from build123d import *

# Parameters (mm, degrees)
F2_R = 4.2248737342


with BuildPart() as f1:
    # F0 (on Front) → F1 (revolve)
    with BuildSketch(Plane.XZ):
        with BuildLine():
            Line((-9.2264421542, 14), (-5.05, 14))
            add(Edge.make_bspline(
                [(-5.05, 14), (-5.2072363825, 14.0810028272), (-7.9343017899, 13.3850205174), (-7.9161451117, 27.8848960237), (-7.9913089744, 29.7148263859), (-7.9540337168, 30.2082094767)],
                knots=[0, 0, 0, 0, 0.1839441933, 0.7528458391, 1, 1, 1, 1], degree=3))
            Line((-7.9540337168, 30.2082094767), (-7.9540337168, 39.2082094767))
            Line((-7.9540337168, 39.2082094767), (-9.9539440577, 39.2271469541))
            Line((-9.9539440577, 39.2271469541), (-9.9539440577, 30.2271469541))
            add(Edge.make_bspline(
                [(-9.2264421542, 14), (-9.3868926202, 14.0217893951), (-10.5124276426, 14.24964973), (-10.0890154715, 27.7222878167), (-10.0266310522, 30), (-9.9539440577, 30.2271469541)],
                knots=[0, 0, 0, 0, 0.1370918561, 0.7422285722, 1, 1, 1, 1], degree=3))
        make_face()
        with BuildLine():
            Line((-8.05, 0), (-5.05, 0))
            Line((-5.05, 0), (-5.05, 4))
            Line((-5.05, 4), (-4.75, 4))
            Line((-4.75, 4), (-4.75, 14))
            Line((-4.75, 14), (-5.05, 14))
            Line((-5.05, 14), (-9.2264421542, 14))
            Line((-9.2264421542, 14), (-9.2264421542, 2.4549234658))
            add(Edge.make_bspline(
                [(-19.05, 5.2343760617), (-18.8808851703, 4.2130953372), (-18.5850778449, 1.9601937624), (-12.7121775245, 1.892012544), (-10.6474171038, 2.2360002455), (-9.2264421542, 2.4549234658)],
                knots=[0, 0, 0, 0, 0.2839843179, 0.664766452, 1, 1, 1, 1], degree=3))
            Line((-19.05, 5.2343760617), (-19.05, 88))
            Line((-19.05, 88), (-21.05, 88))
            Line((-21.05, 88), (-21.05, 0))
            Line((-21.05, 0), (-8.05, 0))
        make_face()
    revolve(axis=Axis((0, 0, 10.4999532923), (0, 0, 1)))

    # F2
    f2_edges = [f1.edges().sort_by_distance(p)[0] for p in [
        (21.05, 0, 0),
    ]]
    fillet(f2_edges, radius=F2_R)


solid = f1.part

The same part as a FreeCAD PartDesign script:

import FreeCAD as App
import Part
import Sketcher
from FreeCAD import Vector
Q = App.Units.Quantity


def edges_at(feature, points):
    """Names of the edges that pass closest to the given points."""
    edges = feature.Shape.Edges
    near = lambda p: min(range(len(edges)), key=lambda i: edges[i].distToShape(Part.Vertex(*p))[0])
    return sorted({f"Edge{near(p) + 1}" for p in points})

doc = App.newDocument("Part")
body = doc.addObject("PartDesign::Body", "Body")

# Sketch on XZ plane
sketch1 = doc.addObject("Sketcher::SketchObject", "Sketch")
body.addObject(sketch1)
sketch1.AttachmentSupport = (doc.XZ_Plane, [""])
sketch1.MapMode = "FlatFace"
sketch1.addGeometry(Part.BSplineCurve([Vector(-5.05, 14, 0), Vector(-5.207236, 14.081003, 0), Vector(-7.934302, 13.385021, 0), Vector(-7.916145, 27.884896, 0), Vector(-7.991309, 29.714826, 0), Vector(-7.954034, 30.208209, 0)], [4, 1, 1, 4], [0, 0.183944193, 0.752845839, 1], False, 3, [1, 1, 1, 1, 1, 1], False), False)
sketch1.addGeometry(Part.LineSegment(Vector(-7.954034, 30.208209, 0), Vector(-7.954034, 39.208209, 0)), False)
sketch1.addGeometry(Part.LineSegment(Vector(-7.954034, 39.208209, 0), Vector(-9.953944, 39.227147, 0)), False)
sketch1.addGeometry(Part.LineSegment(Vector(-9.953944, 39.227147, 0), Vector(-9.953944, 30.227147, 0)), False)
sketch1.addGeometry(Part.BSplineCurve([Vector(-9.226442, 14, 0), Vector(-9.386893, 14.021789, 0), Vector(-10.512428, 14.24965, 0), Vector(-10.089015, 27.722288, 0), Vector(-10.026631, 30, 0), Vector(-9.953944, 30.227147, 0)], [4, 1, 1, 4], [0, 0.137091856, 0.742228572, 1], False, 3, [1, 1, 1, 1, 1, 1], False), False)
sketch1.addGeometry(Part.LineSegment(Vector(-9.226442, 14, 0), Vector(-9.226442, 2.454923, 0)), False)
sketch1.addGeometry(Part.BSplineCurve([Vector(-19.05, 5.234376, 0), Vector(-18.880885, 4.213095, 0), Vector(-18.585078, 1.960194, 0), Vector(-12.712178, 1.892013, 0), Vector(-10.647417, 2.236, 0), Vector(-9.226442, 2.454923, 0)], [4, 1, 1, 4], [0, 0.283984318, 0.664766452, 1], False, 3, [1, 1, 1, 1, 1, 1], False), False)
sketch1.addGeometry(Part.LineSegment(Vector(-19.05, 5.234376, 0), Vector(-19.05, 88, 0)), False)
sketch1.addGeometry(Part.LineSegment(Vector(-19.05, 88, 0), Vector(-21.05, 88, 0)), False)
sketch1.addGeometry(Part.LineSegment(Vector(-21.05, 88, 0), Vector(-21.05, 0, 0)), False)
sketch1.addGeometry(Part.LineSegment(Vector(-21.05, 0, 0), Vector(-5.05, 0, 0)), False)
sketch1.addGeometry(Part.LineSegment(Vector(-5.05, 0, 0), Vector(-5.05, 4, 0)), False)
sketch1.addGeometry(Part.LineSegment(Vector(-5.05, 4, 0), Vector(-4.75, 4, 0)), False)
sketch1.addGeometry(Part.LineSegment(Vector(-4.75, 4, 0), Vector(-4.75, 14, 0)), False)
sketch1.addGeometry(Part.LineSegment(Vector(-4.75, 14, 0), Vector(-5.05, 14, 0)), False)
sketch1.addConstraint(Sketcher.Constraint("Block", 0))
sketch1.addConstraint(Sketcher.Constraint("Block", 4))
sketch1.addConstraint(Sketcher.Constraint("Block", 6))
sketch1.addConstraint(Sketcher.Constraint("Coincident", 0, 2, 1, 1))
sketch1.addConstraint(Sketcher.Constraint("Coincident", 1, 2, 2, 1))
sketch1.addConstraint(Sketcher.Constraint("Coincident", 2, 2, 3, 1))
sketch1.addConstraint(Sketcher.Constraint("Coincident", 3, 2, 4, 2))
sketch1.addConstraint(Sketcher.Constraint("Coincident", 4, 1, 5, 1))
sketch1.addConstraint(Sketcher.Constraint("Coincident", 5, 2, 6, 2))
sketch1.addConstraint(Sketcher.Constraint("Coincident", 6, 1, 7, 1))
sketch1.addConstraint(Sketcher.Constraint("Coincident", 7, 2, 8, 1))
sketch1.addConstraint(Sketcher.Constraint("Coincident", 8, 2, 9, 1))
sketch1.addConstraint(Sketcher.Constraint("Coincident", 9, 2, 10, 1))
sketch1.addConstraint(Sketcher.Constraint("Coincident", 10, 2, 11, 1))
sketch1.addConstraint(Sketcher.Constraint("Coincident", 11, 2, 12, 1))
sketch1.addConstraint(Sketcher.Constraint("Coincident", 12, 2, 13, 1))
sketch1.addConstraint(Sketcher.Constraint("Coincident", 13, 2, 14, 1))
sketch1.addConstraint(Sketcher.Constraint("Coincident", 14, 2, 0, 1))
sketch1.addConstraint(Sketcher.Constraint("Vertical", 1))
sketch1.addConstraint(Sketcher.Constraint("Vertical", 3))
sketch1.addConstraint(Sketcher.Constraint("Vertical", 7))
sketch1.addConstraint(Sketcher.Constraint("Horizontal", 8))
sketch1.addConstraint(Sketcher.Constraint("Vertical", 9))
sketch1.addConstraint(Sketcher.Constraint("Horizontal", 10))
sketch1.addConstraint(Sketcher.Constraint("Vertical", 11))
sketch1.addConstraint(Sketcher.Constraint("Horizontal", 12))
sketch1.addConstraint(Sketcher.Constraint("Vertical", 13))
sketch1.addConstraint(Sketcher.Constraint("Horizontal", 14))
sketch1.addConstraint(Sketcher.Constraint("PointOnObject", 9, 2, -1))
sketch1.addConstraint(Sketcher.Constraint("Vertical", 11, 2, 14, 2))
sketch1.addConstraint(Sketcher.Constraint("Equal", 1, 3))
sketch1.addConstraint(Sketcher.Constraint("DistanceX", 8, 2, 8, 1, Q("2 mm")))
sketch1.addConstraint(Sketcher.Constraint("DistanceY", 1, 1, 1, 2, Q("9 mm")))
sketch1.addConstraint(Sketcher.Constraint("DistanceY", 9, 2, 9, 1, Q("88 mm")))
sketch1.addConstraint(Sketcher.Constraint("DistanceY", 11, 1, 11, 2, Q("4 mm")))
sketch1.addConstraint(Sketcher.Constraint("DistanceX", 12, 1, 12, 2, Q("0.3 mm")))
revolution = doc.addObject("PartDesign::Revolution", "Revolution")
body.addObject(revolution)
revolution.Profile = sketch1
revolution.ReferenceAxis = (sketch1, ["V_Axis"])
revolution.Angle = 360
doc.recompute()

fillet = doc.addObject("PartDesign::Fillet", "Fillet")
body.addObject(fillet)
fillet.Base = (revolution, edges_at(revolution, [(21.05, 0, 0)]))
fillet.Radius = 4.224874

doc.recompute()
